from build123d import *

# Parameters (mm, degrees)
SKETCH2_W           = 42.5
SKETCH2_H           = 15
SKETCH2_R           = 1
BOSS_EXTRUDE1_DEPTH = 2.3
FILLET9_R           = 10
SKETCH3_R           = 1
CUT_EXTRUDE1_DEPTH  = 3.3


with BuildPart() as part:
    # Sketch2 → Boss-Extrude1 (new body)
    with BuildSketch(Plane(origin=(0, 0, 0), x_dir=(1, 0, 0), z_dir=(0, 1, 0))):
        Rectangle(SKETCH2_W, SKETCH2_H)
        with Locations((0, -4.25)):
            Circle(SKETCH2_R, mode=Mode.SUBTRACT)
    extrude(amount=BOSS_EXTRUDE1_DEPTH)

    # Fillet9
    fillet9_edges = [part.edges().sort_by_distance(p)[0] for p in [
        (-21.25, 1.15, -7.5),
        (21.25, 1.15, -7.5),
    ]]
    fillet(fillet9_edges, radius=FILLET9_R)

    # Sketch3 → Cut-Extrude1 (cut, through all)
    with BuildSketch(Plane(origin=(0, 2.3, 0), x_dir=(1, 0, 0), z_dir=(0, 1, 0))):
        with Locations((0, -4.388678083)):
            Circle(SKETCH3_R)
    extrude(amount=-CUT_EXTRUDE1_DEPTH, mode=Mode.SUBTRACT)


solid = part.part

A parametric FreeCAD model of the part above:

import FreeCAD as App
import Part
import Sketcher

V = App.Vector


def edges_at(feature, points):
    """Names of the edges that pass closest to the given points."""
    edges = feature.Shape.Edges
    near = lambda p: min(range(len(edges)), key=lambda i: edges[i].distToShape(Part.Vertex(*p))[0])
    return sorted({f"Edge{near(p) + 1}" for p in points})


def add_polygon(sketch, points):
    """Adds a closed chain of lines whose ends are joined by coincident constraints."""
    first, n = sketch.GeometryCount, len(points)
    for a, b in zip(points, points[1:] + points[:1]):
        sketch.addGeometry(Part.LineSegment(App.Vector(*a, 0), App.Vector(*b, 0)), False)
    for i in range(n):
        sketch.addConstraint(Sketcher.Constraint("Coincident", first + i, 2, first + (i + 1) % n, 1))

doc = App.newDocument("Part")
params = doc.addObject("Spreadsheet::Sheet", "Params")
for row, (alias, value) in enumerate([
    ("sketch1_diameter", "2 mm"),
    ("sketch1_height", "15 mm"),
    ("sketch1_width", "42.5 mm"),
    ("pad1_length", "2.3 mm"),
    ("fillet_radius", "10 mm"),
    ("sketch2_diameter", "2 mm"),
], start=1):
    params.set(f"A{row}", alias)
    params.set(f"B{row}", "=" + value)
    params.setAlias(f"B{row}", alias)

body = doc.addObject("PartDesign::Body", "Body")

# Sketch on XZ plane
sketch1 = body.newObject("Sketcher::SketchObject", "Sketch")
sketch1.AttachmentSupport = (doc.getObject("XZ_Plane"), [""])
sketch1.MapMode = "FlatFace"
add_polygon(sketch1, [(-21.2, -7.5), (-21.2, 7.5), (21.2, 7.5), (21.2, -7.5)])  # lines 0-3
sketch1.addGeometry(Part.Circle(V(0, 4.2, 0), V(0, 0, 1), 1), False)  # 4
sketch1.addConstraint(Sketcher.Constraint("Vertical", 0))
sketch1.addConstraint(Sketcher.Constraint("Horizontal", 1))
sketch1.addConstraint(Sketcher.Constraint("Vertical", 2))
sketch1.addConstraint(Sketcher.Constraint("Horizontal", 3))
sketch1.addConstraint(Sketcher.Constraint("Symmetric", 0, 2, 2, 2, -1, 1))
sketch1.addConstraint(Sketcher.Constraint("PointOnObject", 4, 3, -2))
sketch1.addConstraint(Sketcher.Constraint("Diameter", 4, 2.0))
sketch1.addConstraint(Sketcher.Constraint("DistanceY", 0, 1, 0, 2, 15.0))
sketch1.addConstraint(Sketcher.Constraint("DistanceX", 1, 1, 1, 2, 42.5))
sketch1.addConstraint(Sketcher.Constraint("DistanceY", -1, 1, 4, 3, 4.25))
sketch1.setExpression("Constraints[10]", "Params.sketch1_diameter")
sketch1.setExpression("Constraints[11]", "Params.sketch1_height")
sketch1.setExpression("Constraints[12]", "Params.sketch1_width")
pad1 = body.newObject("PartDesign::Pad", "Pad")
pad1.Profile = sketch1
pad1.setExpression("Length", "Params.pad1_length")
pad1.Reversed = True
doc.recompute()

fillet = body.newObject("PartDesign::Fillet", "Fillet")
fillet.Base = (pad1, edges_at(pad1, [(-21.25, 1.15, -7.5), (21.25, 1.15, -7.5)]))
fillet.setExpression("Radius", "Params.fillet_radius")

# Sketch on XZ plane
sketch2 = body.newObject("Sketcher::SketchObject", "Sketch001")
sketch2.AttachmentSupport = (doc.getObject("XZ_Plane"), [""])
sketch2.MapMode = "FlatFace"
sketch2.AttachmentOffset = App.Placement(V(0, 0, -2.3), App.Rotation())
sketch2.addGeometry(Part.Circle(V(0, 4.4, 0), V(0, 0, 1), 1), False)
sketch2.addConstraint(Sketcher.Constraint("PointOnObject", 0, 3, -2))
sketch2.addConstraint(Sketcher.Constraint("Diameter", 0, 2.0))
sketch2.addConstraint(Sketcher.Constraint("DistanceY", -1, 1, 0, 3, 4.388678))
sketch2.setExpression("Constraints[1]", "Params.sketch2_diameter")
pocket1 = body.newObject("PartDesign::Pocket", "Pocket")
pocket1.Profile = sketch2
pocket1.Type = "ThroughAll"
pocket1.Reversed = True

doc.recompute()
